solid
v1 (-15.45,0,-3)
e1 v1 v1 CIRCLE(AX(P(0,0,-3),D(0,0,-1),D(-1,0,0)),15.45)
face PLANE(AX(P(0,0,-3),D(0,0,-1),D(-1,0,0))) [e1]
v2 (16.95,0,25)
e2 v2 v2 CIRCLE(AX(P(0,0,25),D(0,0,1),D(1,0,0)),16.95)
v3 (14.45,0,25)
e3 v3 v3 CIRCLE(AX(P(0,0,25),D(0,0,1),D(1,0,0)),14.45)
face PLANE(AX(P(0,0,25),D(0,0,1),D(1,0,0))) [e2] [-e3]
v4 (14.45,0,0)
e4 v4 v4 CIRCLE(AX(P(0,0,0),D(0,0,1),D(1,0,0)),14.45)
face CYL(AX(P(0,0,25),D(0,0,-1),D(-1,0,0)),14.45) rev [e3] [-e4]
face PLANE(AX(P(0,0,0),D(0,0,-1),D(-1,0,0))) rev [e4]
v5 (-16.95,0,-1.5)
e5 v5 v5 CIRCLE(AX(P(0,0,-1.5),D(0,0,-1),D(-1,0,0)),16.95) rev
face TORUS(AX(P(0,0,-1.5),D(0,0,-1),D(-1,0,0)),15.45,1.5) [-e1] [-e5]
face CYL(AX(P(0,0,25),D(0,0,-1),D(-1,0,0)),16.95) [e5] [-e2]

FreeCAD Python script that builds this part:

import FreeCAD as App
import Part
import Sketcher
from FreeCAD import Vector
Q = App.Units.Quantity


def edges_at(feature, points):
    """Names of the edges that pass closest to the given points."""
    edges = feature.Shape.Edges
    near = lambda p: min(range(len(edges)), key=lambda i: edges[i].distToShape(Part.Vertex(*p))[0])
    return sorted({f"Edge{near(p) + 1}" for p in points})

doc = App.newDocument("Part")
body = doc.addObject("PartDesign::Body", "Body")

# Sketch on XY plane
sketch1 = body.newObject("Sketcher::SketchObject", "Sketch")
sketch1.AttachmentSupport = (doc.getObject("XY_Plane"), [""])
sketch1.MapMode = "FlatFace"
sketch1.addGeometry([
    Part.Circle(Vector(0, 0, 0), Vector(0, 0, 1), 17),
    Part.Circle(Vector(0, 0, 0), Vector(0, 0, 1), 14),
], False)
sketch1.addConstraint([
    Sketcher.Constraint("Coincident", 0, 3, -1, 1),
    Sketcher.Constraint("Coincident", 1, 3, -1, 1),
    Sketcher.Constraint("Diameter", 0, Q("33.9 mm")),
    Sketcher.Constraint("Diameter", 1, Q("28.9 mm")),
])
pad1 = body.newObject("PartDesign::Pad", "Pad")
pad1.Profile = sketch1
pad1.Length = 25

# Sketch on XY plane
sketch2 = body.newObject("Sketcher::SketchObject", "Sketch001")
sketch2.AttachmentSupport = (doc.getObject("XY_Plane"), [""])
sketch2.MapMode = "FlatFace"
sketch2.addGeometry(Part.Circle(Vector(0, 0, 0), Vector(0, 0, 1), 17), False)
sketch2.addConstraint([
    Sketcher.Constraint("Coincident", 0, 3, -1, 1),
    Sketcher.Constraint("Diameter", 0, Q("33.9 mm")),
])
pad2 = body.newObject("PartDesign::Pad", "Pad001")
pad2.Profile = sketch2
pad2.Length = 3
pad2.Reversed = True
doc.recompute()

fillet = body.newObject("PartDesign::Fillet", "Fillet")
fillet.Base = (pad2, edges_at(pad2, [(16.95, 0, -3)]))
fillet.Radius = 1.5

doc.recompute()
